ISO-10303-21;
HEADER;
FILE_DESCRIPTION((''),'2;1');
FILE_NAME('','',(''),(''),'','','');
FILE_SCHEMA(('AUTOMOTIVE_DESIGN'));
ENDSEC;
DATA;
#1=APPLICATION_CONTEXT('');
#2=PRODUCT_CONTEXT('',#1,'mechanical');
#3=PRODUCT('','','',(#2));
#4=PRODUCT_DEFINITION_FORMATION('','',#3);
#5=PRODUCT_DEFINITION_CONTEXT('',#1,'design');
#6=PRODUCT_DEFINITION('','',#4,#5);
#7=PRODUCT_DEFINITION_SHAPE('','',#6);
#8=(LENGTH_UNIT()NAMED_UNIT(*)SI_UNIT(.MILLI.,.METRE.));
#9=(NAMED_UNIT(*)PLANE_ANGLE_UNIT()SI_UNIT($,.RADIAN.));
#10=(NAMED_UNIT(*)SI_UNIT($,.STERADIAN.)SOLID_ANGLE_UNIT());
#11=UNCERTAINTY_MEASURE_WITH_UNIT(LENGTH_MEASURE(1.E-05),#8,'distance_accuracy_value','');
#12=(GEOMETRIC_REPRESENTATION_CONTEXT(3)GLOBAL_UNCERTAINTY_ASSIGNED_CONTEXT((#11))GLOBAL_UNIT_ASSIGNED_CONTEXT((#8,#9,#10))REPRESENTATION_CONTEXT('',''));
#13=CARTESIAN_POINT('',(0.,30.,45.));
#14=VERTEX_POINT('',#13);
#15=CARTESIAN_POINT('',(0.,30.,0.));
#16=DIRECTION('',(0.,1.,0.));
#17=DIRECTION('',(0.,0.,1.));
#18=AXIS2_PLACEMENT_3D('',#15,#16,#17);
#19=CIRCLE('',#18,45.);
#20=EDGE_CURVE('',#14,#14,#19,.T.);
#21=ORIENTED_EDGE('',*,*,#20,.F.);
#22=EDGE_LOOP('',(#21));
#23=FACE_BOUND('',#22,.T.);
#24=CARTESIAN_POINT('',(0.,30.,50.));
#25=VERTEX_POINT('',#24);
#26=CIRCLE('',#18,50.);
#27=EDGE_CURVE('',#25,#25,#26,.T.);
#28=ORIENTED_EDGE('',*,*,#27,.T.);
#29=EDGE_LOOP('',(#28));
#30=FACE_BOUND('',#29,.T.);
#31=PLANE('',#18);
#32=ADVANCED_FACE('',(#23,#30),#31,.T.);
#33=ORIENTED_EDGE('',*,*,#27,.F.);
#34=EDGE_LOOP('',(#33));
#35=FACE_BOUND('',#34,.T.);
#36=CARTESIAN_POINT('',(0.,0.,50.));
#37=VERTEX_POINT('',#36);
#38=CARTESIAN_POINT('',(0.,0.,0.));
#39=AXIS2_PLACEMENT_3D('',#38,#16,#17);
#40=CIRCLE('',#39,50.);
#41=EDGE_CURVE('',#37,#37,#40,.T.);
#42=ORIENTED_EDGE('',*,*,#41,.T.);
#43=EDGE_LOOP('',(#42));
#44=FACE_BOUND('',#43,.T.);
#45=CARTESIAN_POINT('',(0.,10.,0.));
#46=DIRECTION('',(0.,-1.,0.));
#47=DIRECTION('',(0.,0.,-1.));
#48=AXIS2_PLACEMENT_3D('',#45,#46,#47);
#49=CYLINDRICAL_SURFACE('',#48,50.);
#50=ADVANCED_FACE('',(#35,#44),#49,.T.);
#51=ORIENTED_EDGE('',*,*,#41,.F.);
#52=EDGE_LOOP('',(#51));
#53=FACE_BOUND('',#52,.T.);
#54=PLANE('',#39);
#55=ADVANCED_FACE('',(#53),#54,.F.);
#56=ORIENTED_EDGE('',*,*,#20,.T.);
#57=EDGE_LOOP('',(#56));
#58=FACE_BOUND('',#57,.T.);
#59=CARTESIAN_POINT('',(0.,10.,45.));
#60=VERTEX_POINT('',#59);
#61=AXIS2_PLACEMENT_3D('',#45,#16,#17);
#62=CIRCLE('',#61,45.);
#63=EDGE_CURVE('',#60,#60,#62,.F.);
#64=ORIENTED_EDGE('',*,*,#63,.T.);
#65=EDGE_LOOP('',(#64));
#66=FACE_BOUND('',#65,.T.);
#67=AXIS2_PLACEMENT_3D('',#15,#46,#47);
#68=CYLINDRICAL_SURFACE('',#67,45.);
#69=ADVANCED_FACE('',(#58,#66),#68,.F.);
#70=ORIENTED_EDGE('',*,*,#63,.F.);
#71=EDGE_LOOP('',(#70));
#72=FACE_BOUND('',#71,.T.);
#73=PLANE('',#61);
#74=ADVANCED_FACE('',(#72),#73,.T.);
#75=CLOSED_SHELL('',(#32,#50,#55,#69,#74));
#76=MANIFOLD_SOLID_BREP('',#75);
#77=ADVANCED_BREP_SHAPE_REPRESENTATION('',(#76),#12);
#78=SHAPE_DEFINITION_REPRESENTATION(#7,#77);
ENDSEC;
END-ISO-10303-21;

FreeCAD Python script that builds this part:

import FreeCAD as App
import Part
import Sketcher
from FreeCAD import Vector

doc = App.newDocument("Part")
body = doc.addObject("PartDesign::Body", "Body")

# Sketch on XZ plane
sketch1 = doc.addObject("Sketcher::SketchObject", "Sketch")
body.addObject(sketch1)
sketch1.AttachmentSupport = (doc.XZ_Plane, [""])
sketch1.MapMode = "FlatFace"
sketch1.addGeometry(Part.Circle(Vector(0, 0, 0), Vector(0, 0, 1), 50), False)
sketch1.addConstraint([
    Sketcher.Constraint("Coincident", 0, 3, -1, 1),
    Sketcher.Constraint("Diameter", 0, 100.0),
])
pad1 = doc.addObject("PartDesign::Pad", "Pad")
body.addObject(pad1)
pad1.Profile = sketch1
pad1.Length = 10
pad1.Reversed = True

# Sketch on XZ plane
sketch2 = doc.addObject("Sketcher::SketchObject", "Sketch001")
body.addObject(sketch2)
sketch2.AttachmentSupport = (doc.XZ_Plane, [""])
sketch2.MapMode = "FlatFace"
sketch2.AttachmentOffset = App.Placement(Vector(0, 0, -10), App.Rotation())
sketch2.addGeometry([
    Part.Circle(Vector(0, 0, 0), Vector(0, 0, 1), 50),
    Part.Circle(Vector(0, 0, 0), Vector(0, 0, 1), 45),
], False)
sketch2.addConstraint([
    Sketcher.Constraint("Coincident", 0, 3, -1, 1),
    Sketcher.Constraint("Coincident", 1, 3, -1, 1),
    Sketcher.Constraint("Diameter", 0, 100.0),
    Sketcher.Constraint("Diameter", 1, 90.0),
])
pad2 = doc.addObject("PartDesign::Pad", "Pad001")
body.addObject(pad2)
pad2.Profile = sketch2
pad2.Length = 20
pad2.Reversed = True

doc.recompute()
